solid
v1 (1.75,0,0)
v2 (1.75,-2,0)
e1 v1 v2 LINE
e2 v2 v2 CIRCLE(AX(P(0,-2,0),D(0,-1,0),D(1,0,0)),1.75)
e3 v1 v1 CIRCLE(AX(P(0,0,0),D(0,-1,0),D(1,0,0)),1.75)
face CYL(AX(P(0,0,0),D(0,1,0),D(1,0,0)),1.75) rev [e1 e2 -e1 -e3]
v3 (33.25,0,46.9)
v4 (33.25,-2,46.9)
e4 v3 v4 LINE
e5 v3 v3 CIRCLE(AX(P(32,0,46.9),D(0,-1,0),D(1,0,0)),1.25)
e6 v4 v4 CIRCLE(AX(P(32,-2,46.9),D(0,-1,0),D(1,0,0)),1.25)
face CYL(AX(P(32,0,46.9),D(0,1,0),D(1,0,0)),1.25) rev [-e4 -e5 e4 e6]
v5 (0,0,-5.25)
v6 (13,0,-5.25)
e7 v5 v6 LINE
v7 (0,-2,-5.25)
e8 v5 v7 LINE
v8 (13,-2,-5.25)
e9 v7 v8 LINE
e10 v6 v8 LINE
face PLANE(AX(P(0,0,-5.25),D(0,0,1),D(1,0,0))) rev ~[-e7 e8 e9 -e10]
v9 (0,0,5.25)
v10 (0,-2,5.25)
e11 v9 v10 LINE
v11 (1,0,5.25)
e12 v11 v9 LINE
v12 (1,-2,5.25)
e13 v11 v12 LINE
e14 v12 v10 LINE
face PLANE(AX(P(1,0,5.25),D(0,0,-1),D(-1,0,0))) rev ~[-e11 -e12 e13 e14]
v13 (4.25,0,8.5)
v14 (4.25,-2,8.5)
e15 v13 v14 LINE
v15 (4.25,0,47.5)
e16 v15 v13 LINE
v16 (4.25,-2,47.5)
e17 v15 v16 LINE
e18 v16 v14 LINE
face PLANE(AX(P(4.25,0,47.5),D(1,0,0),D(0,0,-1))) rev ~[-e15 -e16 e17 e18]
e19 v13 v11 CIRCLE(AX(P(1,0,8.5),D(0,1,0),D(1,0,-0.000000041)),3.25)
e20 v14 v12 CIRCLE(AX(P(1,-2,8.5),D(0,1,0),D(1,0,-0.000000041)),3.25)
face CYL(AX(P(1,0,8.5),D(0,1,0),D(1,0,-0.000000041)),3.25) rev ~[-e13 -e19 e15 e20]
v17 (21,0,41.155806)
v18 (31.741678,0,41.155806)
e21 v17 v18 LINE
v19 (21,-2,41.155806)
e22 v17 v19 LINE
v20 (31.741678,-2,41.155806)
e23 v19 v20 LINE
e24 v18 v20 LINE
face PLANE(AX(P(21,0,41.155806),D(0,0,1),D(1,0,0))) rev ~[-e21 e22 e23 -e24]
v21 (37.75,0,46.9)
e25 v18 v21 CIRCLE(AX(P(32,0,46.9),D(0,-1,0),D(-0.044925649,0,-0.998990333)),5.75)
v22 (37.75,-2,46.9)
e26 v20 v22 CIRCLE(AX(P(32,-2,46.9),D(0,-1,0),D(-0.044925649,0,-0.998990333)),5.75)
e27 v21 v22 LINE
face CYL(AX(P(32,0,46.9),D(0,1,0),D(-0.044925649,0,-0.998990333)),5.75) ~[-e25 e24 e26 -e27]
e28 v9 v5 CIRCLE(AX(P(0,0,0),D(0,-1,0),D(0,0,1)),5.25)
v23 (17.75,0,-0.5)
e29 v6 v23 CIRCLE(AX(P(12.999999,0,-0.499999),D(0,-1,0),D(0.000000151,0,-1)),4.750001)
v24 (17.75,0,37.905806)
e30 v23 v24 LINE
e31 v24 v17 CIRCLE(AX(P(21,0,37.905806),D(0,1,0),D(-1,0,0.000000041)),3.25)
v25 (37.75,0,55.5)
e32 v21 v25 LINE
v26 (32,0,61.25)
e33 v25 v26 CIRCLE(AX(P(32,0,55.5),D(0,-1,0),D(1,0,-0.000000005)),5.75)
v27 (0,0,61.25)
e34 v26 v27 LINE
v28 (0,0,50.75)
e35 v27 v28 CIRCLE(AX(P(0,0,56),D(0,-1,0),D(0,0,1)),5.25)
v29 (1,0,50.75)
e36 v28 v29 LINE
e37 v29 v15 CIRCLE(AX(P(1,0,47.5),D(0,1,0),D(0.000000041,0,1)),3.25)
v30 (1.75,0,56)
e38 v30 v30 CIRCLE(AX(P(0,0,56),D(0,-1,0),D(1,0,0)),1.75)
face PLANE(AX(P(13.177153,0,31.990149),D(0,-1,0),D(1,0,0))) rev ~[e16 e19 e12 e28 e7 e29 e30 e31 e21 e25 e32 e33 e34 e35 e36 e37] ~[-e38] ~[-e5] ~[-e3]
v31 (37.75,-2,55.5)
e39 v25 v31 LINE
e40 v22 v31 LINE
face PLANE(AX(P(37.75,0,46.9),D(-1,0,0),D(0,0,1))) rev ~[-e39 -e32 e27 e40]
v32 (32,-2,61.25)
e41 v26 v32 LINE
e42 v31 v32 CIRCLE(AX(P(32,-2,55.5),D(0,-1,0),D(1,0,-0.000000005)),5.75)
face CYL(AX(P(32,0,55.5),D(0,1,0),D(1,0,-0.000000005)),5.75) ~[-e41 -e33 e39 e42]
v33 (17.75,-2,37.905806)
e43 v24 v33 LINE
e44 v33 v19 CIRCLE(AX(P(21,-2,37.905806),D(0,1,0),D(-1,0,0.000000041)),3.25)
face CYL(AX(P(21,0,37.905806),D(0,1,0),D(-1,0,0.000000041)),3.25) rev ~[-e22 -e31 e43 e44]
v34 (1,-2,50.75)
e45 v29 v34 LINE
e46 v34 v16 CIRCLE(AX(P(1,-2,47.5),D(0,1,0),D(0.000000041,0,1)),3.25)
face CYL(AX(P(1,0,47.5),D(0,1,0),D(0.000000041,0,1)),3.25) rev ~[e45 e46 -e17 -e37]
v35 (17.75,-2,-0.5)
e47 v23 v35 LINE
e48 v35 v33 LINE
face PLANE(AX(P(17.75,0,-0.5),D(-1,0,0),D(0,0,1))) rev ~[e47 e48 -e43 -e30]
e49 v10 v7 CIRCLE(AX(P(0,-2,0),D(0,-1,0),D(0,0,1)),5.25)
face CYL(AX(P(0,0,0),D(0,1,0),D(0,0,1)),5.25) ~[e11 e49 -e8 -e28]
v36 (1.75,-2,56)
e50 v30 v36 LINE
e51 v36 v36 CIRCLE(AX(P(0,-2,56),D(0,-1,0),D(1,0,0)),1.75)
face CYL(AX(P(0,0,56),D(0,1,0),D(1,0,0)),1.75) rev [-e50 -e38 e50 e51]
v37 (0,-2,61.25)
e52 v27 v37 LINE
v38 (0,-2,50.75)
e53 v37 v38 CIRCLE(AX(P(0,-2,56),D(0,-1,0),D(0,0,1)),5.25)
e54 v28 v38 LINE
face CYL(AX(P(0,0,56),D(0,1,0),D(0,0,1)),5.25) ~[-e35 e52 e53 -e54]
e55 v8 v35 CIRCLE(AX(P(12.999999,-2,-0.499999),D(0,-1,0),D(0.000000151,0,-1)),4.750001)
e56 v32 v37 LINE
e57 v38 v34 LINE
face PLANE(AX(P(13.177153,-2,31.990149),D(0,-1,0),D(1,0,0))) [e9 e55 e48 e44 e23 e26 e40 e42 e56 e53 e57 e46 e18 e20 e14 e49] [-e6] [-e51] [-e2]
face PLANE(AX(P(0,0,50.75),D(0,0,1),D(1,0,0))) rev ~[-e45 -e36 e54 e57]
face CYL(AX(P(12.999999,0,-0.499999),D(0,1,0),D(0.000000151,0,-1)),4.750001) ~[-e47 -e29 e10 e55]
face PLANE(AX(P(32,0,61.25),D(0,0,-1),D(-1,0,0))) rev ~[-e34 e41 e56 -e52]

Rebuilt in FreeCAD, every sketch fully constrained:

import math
import FreeCAD as App
import Part
import Sketcher

doc = App.newDocument("Part")
body = doc.addObject("PartDesign::Body", "Body")

# Sketch on XZ plane
sketch1 = body.newObject("Sketcher::SketchObject", "Sketch")
sketch1.AttachmentSupport = (doc.getObject("XZ_Plane"), [""])
sketch1.MapMode = "FlatFace"
sketch1.addGeometry([
    Part.LineSegment(App.Vector(32, 61.2, 0), App.Vector(0, 61.2, 0)),  # 0
    Part.ArcOfCircle(Part.Circle(App.Vector(0, 56, 0), App.Vector(0, 0, 1), 5.2), math.radians(90), math.radians(270)),  # 1
    Part.LineSegment(App.Vector(0, 50.8, 0), App.Vector(1, 50.8, 0)),  # 2
    Part.ArcOfCircle(Part.Circle(App.Vector(1, 47.5, 0), App.Vector(0, 0, 1), 3.3), math.radians(0), math.radians(90)),  # 3
    Part.LineSegment(App.Vector(4.2, 47.5, 0), App.Vector(4.2, 8.5, 0)),  # 4
    Part.ArcOfCircle(Part.Circle(App.Vector(1, 8.5, 0), App.Vector(0, 0, 1), 3.3), math.radians(-90), math.radians(0)),  # 5
    Part.LineSegment(App.Vector(1, 5.2, 0), App.Vector(0, 5.2, 0)),  # 6
    Part.ArcOfCircle(Part.Circle(App.Vector(0, 0, 0), App.Vector(0, 0, 1), 5.2), math.radians(90), math.radians(270)),  # 7
    Part.LineSegment(App.Vector(0, -5.2, 0), App.Vector(13, -5.2, 0)),  # 8
    Part.ArcOfCircle(Part.Circle(App.Vector(13, -0.5, 0), App.Vector(0, 0, 1), 4.8), math.radians(-90), math.radians(0)),  # 9
    Part.LineSegment(App.Vector(17.8, -0.5, 0), App.Vector(17.8, 37.9, 0)),  # 10
    Part.ArcOfCircle(Part.Circle(App.Vector(21, 37.9, 0), App.Vector(0, 0, 1), 3.3), math.radians(90), math.radians(180)),  # 11
    Part.LineSegment(App.Vector(21, 41.2, 0), App.Vector(31.7, 41.2, 0)),  # 12
    Part.ArcOfCircle(Part.Circle(App.Vector(32, 46.9, 0), App.Vector(0, 0, 1), 5.7), math.radians(-93), math.radians(0)),  # 13
    Part.LineSegment(App.Vector(37.8, 46.9, 0), App.Vector(37.8, 55.5, 0)),  # 14
    Part.ArcOfCircle(Part.Circle(App.Vector(32, 55.5, 0), App.Vector(0, 0, 1), 5.7), math.radians(0), math.radians(90)),  # 15
    Part.Circle(App.Vector(0, 0, 0), App.Vector(0, 0, 1), 1.8),  # 16
    Part.Circle(App.Vector(0, 56, 0), App.Vector(0, 0, 1), 1.8),  # 17
    Part.Circle(App.Vector(32, 46.9, 0), App.Vector(0, 0, 1), 1.2),  # 18
], False)
sketch1.addConstraint([
    Sketcher.Constraint("Tangent", 0, 2, 1, 1),
    Sketcher.Constraint("Tangent", 1, 2, 2, 1),
    Sketcher.Constraint("Tangent", 2, 2, 3, 2),
    Sketcher.Constraint("Tangent", 3, 1, 4, 1),
    Sketcher.Constraint("Tangent", 4, 2, 5, 2),
    Sketcher.Constraint("Tangent", 5, 1, 6, 1),
    Sketcher.Constraint("Tangent", 6, 2, 7, 1),
    Sketcher.Constraint("Tangent", 7, 2, 8, 1),
    Sketcher.Constraint("Tangent", 8, 2, 9, 1),
    Sketcher.Constraint("Tangent", 9, 2, 10, 1),
    Sketcher.Constraint("Tangent", 10, 2, 11, 2),
    Sketcher.Constraint("Tangent", 11, 1, 12, 1),
    Sketcher.Constraint("Coincident", 12, 2, 13, 1),
    Sketcher.Constraint("Tangent", 13, 2, 14, 1),
    Sketcher.Constraint("Tangent", 14, 2, 15, 1),
    Sketcher.Constraint("Tangent", 15, 2, 0, 1),
    Sketcher.Constraint("Horizontal", 0),
    Sketcher.Constraint("Horizontal", 2),
    Sketcher.Constraint("Vertical", 4),
    Sketcher.Constraint("Horizontal", 6),
    Sketcher.Constraint("Horizontal", 8),
    Sketcher.Constraint("Vertical", 10),
    Sketcher.Constraint("Horizontal", 12),
    Sketcher.Constraint("Vertical", 14),
    Sketcher.Constraint("Coincident", 7, 3, -1, 1),
    Sketcher.Constraint("Coincident", 16, 3, -1, 1),
    Sketcher.Constraint("Coincident", 17, 3, 1, 3),
    Sketcher.Constraint("Coincident", 18, 3, 13, 3),
    Sketcher.Constraint("Equal", 3, 5),
    Sketcher.Constraint("Equal", 1, 7),
    Sketcher.Constraint("Equal", 5, 11),
    Sketcher.Constraint("Equal", 13, 15),
    Sketcher.Constraint("Equal", 16, 17),
    Sketcher.Constraint("PointOnObject", 1, 3, -2),
    Sketcher.Constraint("Diameter", 16, 3.5),
    Sketcher.Constraint("Diameter", 18, 2.5),
    Sketcher.Constraint("DistanceX", 0, 2, 0, 1, 32.0),
    Sketcher.Constraint("DistanceX", 2, 1, 2, 2, 1.0),
    Sketcher.Constraint("DistanceX", 8, 1, 8, 2, 13.0),
    Sketcher.Constraint("DistanceY", 4, 2, 4, 1, 39.0),
    Sketcher.Constraint("Radius", 1, 5.25),
    Sketcher.Constraint("Radius", 3, 3.25),
    Sketcher.Constraint("Radius", 9, 4.750001),
    Sketcher.Constraint("Radius", 13, 5.75),
    Sketcher.Constraint("DistanceY", 14, 1, 14, 2, 8.6),
    Sketcher.Constraint("DistanceX", 12, 1, 12, 2, 10.741678),
])
pad1 = body.newObject("PartDesign::Pad", "Pad")
pad1.Profile = sketch1
pad1.Length = 2

doc.recompute()
